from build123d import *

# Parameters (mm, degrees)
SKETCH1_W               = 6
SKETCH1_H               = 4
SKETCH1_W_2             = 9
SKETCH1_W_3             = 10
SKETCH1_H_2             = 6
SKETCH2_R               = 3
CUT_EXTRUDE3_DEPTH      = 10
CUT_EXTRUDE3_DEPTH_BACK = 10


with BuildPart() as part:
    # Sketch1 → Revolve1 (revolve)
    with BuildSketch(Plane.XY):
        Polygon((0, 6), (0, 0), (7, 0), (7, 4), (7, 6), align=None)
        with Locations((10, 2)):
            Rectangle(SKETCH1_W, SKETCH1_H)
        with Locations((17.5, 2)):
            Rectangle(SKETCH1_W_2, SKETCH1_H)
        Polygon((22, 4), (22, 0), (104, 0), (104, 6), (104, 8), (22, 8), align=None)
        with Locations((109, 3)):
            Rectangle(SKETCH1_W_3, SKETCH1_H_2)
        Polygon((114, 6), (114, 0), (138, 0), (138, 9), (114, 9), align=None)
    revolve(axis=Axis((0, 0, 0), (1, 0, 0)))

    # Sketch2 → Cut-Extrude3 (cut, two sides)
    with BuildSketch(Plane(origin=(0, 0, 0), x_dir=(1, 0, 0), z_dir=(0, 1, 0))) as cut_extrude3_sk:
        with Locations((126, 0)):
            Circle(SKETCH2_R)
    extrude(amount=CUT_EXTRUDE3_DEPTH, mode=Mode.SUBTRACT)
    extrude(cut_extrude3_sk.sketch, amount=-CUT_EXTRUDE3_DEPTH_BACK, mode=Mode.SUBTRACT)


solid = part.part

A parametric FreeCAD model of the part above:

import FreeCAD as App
import Part
import Sketcher

V = App.Vector


def add_polygon(sketch, points):
    """Adds a closed chain of lines whose ends are joined by coincident constraints."""
    first, n = sketch.GeometryCount, len(points)
    for a, b in zip(points, points[1:] + points[:1]):
        sketch.addGeometry(Part.LineSegment(App.Vector(*a, 0), App.Vector(*b, 0)), False)
    for i in range(n):
        sketch.addConstraint(Sketcher.Constraint("Coincident", first + i, 2, first + (i + 1) % n, 1))

doc = App.newDocument("Part")
body = doc.addObject("PartDesign::Body", "Body")

sketch1 = body.newObject("Sketcher::SketchObject", "Sketch")
sketch1.AttachmentSupport = (doc.getObject("XY_Plane"), [""])
sketch1.MapMode = "FlatFace"
add_polygon(sketch1, [(0, 6), (0, 0), (138, 0), (138, 9), (114, 9), (114, 6), (104, 6), (104, 8), (22, 8), (22, 4), (7, 4), (7, 6)])
sketch1.addConstraint([
    Sketcher.Constraint("Vertical", 0),
    Sketcher.Constraint("Horizontal", 1),
    Sketcher.Constraint("Vertical", 2),
    Sketcher.Constraint("Horizontal", 3),
    Sketcher.Constraint("Vertical", 4),
    Sketcher.Constraint("Horizontal", 5),
    Sketcher.Constraint("Vertical", 6),
    Sketcher.Constraint("Horizontal", 7),
    Sketcher.Constraint("Vertical", 8),
    Sketcher.Constraint("Horizontal", 9),
    Sketcher.Constraint("Vertical", 10),
    Sketcher.Constraint("Horizontal", 11),
    Sketcher.Constraint("Coincident", 0, 2, -1, 1),
    Sketcher.Constraint("Horizontal", 5, 2, 10, 2),
    Sketcher.Constraint("Equal", 6, 10),
    Sketcher.Constraint("DistanceX", 1, 1, 1, 2, 138.0),
    Sketcher.Constraint("DistanceX", 3, 2, 3, 1, 24.0),
    Sketcher.Constraint("DistanceX", 5, 2, 5, 1, 10.0),
    Sketcher.Constraint("DistanceX", 7, 2, 7, 1, 82.0),
    Sketcher.Constraint("DistanceX", 9, 2, 9, 1, 15.0),
    Sketcher.Constraint("DistanceY", 0, 2, 0, 1, 6.0),
    Sketcher.Constraint("DistanceY", 2, 1, 2, 2, 9.0),
    Sketcher.Constraint("DistanceY", 6, 1, 6, 2, 2.0),
])
revolution = body.newObject("PartDesign::Revolution", "Revolution")
revolution.Profile = sketch1
revolution.ReferenceAxis = (sketch1, ["H_Axis"])
revolution.Angle = 360

sketch2 = body.newObject("Sketcher::SketchObject", "Sketch001")
sketch2.AttachmentSupport = (doc.getObject("XZ_Plane"), [""])
sketch2.MapMode = "FlatFace"
sketch2.addGeometry(Part.Circle(V(126, 0, 0), V(0, 0, 1), 3), False)
sketch2.addConstraint([
    Sketcher.Constraint("PointOnObject", 0, 3, -1),
    Sketcher.Constraint("Diameter", 0, 6.0),
    Sketcher.Constraint("DistanceX", -1, 1, 0, 3, 126.0),
])
pocket1 = body.newObject("PartDesign::Pocket", "Pocket")
pocket1.Profile = sketch2
pocket1.Type = "ThroughAll"
pocket1.Midplane = True

doc.recompute()
